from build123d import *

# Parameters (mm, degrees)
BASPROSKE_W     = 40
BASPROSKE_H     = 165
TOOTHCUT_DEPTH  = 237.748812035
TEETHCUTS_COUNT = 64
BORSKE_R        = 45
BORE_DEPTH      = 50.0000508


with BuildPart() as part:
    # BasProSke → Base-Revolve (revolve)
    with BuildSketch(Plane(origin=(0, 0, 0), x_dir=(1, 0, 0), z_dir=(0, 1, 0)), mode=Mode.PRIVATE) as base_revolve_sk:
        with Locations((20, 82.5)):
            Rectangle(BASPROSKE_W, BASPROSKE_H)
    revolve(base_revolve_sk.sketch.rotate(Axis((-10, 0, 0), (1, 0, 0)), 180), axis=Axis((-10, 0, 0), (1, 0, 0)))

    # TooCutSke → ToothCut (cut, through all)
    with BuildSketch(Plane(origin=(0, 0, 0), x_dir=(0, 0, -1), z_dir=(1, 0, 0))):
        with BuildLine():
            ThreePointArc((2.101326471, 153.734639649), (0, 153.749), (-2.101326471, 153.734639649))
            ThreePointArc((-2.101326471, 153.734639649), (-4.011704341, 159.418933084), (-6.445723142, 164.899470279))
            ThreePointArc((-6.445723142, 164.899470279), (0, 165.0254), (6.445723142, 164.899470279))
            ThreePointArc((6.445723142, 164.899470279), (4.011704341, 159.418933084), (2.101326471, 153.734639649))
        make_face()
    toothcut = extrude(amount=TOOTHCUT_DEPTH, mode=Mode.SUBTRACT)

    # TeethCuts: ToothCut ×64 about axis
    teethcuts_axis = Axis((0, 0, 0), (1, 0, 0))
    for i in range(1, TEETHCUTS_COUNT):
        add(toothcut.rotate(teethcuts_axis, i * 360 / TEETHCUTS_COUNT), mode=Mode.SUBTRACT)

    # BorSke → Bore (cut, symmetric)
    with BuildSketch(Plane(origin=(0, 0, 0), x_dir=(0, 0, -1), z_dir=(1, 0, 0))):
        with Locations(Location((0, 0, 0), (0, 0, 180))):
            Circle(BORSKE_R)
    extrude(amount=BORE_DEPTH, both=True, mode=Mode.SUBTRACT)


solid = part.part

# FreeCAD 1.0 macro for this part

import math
import FreeCAD as App
import Part
import Sketcher
from FreeCAD import Vector


def add_polygon(sketch, points):
    """Adds a closed chain of lines whose ends are joined by coincident constraints."""
    first, n = sketch.GeometryCount, len(points)
    for a, b in zip(points, points[1:] + points[:1]):
        sketch.addGeometry(Part.LineSegment(App.Vector(*a, 0), App.Vector(*b, 0)), False)
    for i in range(n):
        sketch.addConstraint(Sketcher.Constraint("Coincident", first + i, 2, first + (i + 1) % n, 1))

doc = App.newDocument("Part")
params = doc.addObject("Spreadsheet::Sheet", "Params")
for row, (alias, value) in enumerate([
    ("sketch1_width", "40 mm"),
    ("sketch1_height", "165 mm"),
    ("revolution_angle", "360 deg"),
    ("sketch2_radius", "64 mm"),
    ("sketch3_diameter", "90 mm"),
    ("pocket2_length", "100.000102 mm"),
], start=1):
    params.set(f"A{row}", alias)
    params.set(f"B{row}", "=" + value)
    params.setAlias(f"B{row}", alias)

body = doc.addObject("PartDesign::Body", "Body")

# Sketch on XZ plane
sketch1 = body.newObject("Sketcher::SketchObject", "Sketch")
sketch1.AttachmentSupport = (doc.getObject("XZ_Plane"), [""])
sketch1.MapMode = "FlatFace"
add_polygon(sketch1, [(0, -165), (0, 0), (40, 0), (40, -165)])  # lines 0-3
sketch1.addConstraint(Sketcher.Constraint("Vertical", 0))
sketch1.addConstraint(Sketcher.Constraint("Horizontal", 1))
sketch1.addConstraint(Sketcher.Constraint("Vertical", 2))
sketch1.addConstraint(Sketcher.Constraint("Horizontal", 3))
sketch1.addConstraint(Sketcher.Constraint("Coincident", 0, 2, -1, 1))
sketch1.addConstraint(Sketcher.Constraint("DistanceX", 1, 1, 1, 2, 40.0))
sketch1.addConstraint(Sketcher.Constraint("DistanceY", 0, 1, 0, 2, 165.0))
sketch1.setExpression("Constraints[9]", "Params.sketch1_width")
sketch1.setExpression("Constraints[10]", "Params.sketch1_height")
revolution = body.newObject("PartDesign::Revolution", "Revolution")
revolution.Profile = sketch1
revolution.ReferenceAxis = (sketch1, ["H_Axis"])
revolution.setExpression("Angle", "Params.revolution_angle")

# Sketch on YZ plane
sketch2 = body.newObject("Sketcher::SketchObject", "Sketch001")
sketch2.AttachmentSupport = (doc.getObject("YZ_Plane"), [""])
sketch2.MapMode = "FlatFace"
sketch2.addGeometry(Part.ArcOfCircle(Part.Circle(Vector(0, 0, 0), Vector(0, 0, 1), 153.7), math.radians(-0.78), math.radians(0.78)), False)
sketch2.addGeometry(Part.ArcOfCircle(Part.Circle(Vector(136.2, -63.7, 0), Vector(0, 0, 1), 64), math.radians(63.37), math.radians(74.11)), False)
sketch2.addGeometry(Part.ArcOfCircle(Part.Circle(Vector(0, 0, 0), Vector(0, 0, 1), 165), math.radians(-2.24), math.radians(2.24)), False)
sketch2.addGeometry(Part.ArcOfCircle(Part.Circle(Vector(136.2, 63.7, 0), Vector(0, 0, 1), 64), math.radians(-74.11), math.radians(-63.37)), False)
sketch2.addConstraint(Sketcher.Constraint("Coincident", 0, 1, 1, 2))
sketch2.addConstraint(Sketcher.Constraint("Coincident", 1, 1, 2, 1))
sketch2.addConstraint(Sketcher.Constraint("Coincident", 2, 2, 3, 2))
sketch2.addConstraint(Sketcher.Constraint("Coincident", 3, 1, 0, 2))
sketch2.addConstraint(Sketcher.Constraint("Coincident", 0, 3, -1, 1))
sketch2.addConstraint(Sketcher.Constraint("Coincident", 2, 3, -1, 1))
sketch2.addConstraint(Sketcher.Constraint("Equal", 1, 3))
sketch2.addConstraint(Sketcher.Constraint("Symmetric", 1, 3, 3, 3, -1))
sketch2.addConstraint(Sketcher.Constraint("Radius", 1, 64.0))
sketch2.addConstraint(Sketcher.Constraint("Radius", 0, 153.748998))
sketch2.addConstraint(Sketcher.Constraint("Radius", 2, 165.0254))
sketch2.addConstraint(Sketcher.Constraint("DistanceX", -1, 1, 1, 3, 136.210688))
sketch2.addConstraint(Sketcher.Constraint("DistanceY", 1, 3, -1, 1, 63.655458))
sketch2.setExpression("Constraints[8]", "Params.sketch2_radius")
pocket1 = body.newObject("PartDesign::Pocket", "Pocket")
pocket1.Profile = sketch2
pocket1.Type = "ThroughAll"
pocket1.Reversed = True
doc.recompute()

polarpattern = body.newObject("PartDesign::PolarPattern", "PolarPattern")
polarpattern.Originals = [pocket1]
polarpattern.Axis = (doc.getObject("X_Axis"), [""])
polarpattern.Angle = 360
polarpattern.Occurrences = 64
body.Tip = polarpattern

# Sketch on YZ plane
sketch3 = body.newObject("Sketcher::SketchObject", "Sketch002")
sketch3.AttachmentSupport = (doc.getObject("YZ_Plane"), [""])
sketch3.MapMode = "FlatFace"
sketch3.addGeometry(Part.Circle(Vector(0, 0, 0), Vector(0, 0, 1), 45), False)
sketch3.addConstraint(Sketcher.Constraint("Coincident", 0, 3, -1, 1))
sketch3.addConstraint(Sketcher.Constraint("Diameter", 0, 90.0))
sketch3.setExpression("Constraints[1]", "Params.sketch3_diameter")
pocket2 = body.newObject("PartDesign::Pocket", "Pocket001")
pocket2.Profile = sketch3
pocket2.setExpression("Length", "Params.pocket2_length")
pocket2.Midplane = True

doc.recompute()
